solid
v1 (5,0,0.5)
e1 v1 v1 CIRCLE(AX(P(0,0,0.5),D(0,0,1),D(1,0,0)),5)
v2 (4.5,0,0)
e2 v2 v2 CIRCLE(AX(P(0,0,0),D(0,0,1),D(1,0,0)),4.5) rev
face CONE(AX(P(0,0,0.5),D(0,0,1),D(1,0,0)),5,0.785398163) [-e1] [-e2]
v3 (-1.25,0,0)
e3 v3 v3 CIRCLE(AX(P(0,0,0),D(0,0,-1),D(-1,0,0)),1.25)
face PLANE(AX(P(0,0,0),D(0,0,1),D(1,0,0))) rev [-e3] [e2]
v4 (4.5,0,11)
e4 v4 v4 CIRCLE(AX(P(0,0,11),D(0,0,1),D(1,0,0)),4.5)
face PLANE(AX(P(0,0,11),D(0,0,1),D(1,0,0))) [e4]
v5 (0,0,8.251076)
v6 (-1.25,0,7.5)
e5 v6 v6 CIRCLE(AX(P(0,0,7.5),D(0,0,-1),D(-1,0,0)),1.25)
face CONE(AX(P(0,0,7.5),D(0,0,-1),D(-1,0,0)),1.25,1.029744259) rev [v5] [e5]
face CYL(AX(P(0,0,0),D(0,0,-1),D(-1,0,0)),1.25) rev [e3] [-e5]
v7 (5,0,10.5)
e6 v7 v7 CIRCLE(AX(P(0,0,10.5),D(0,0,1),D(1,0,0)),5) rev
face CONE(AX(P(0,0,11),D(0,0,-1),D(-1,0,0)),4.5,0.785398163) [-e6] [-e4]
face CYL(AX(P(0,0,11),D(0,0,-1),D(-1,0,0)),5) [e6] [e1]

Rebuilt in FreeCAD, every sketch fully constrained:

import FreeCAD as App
import Part
import Sketcher
from FreeCAD import Vector


def edges_at(feature, points):
    """Names of the edges that pass closest to the given points."""
    edges = feature.Shape.Edges
    near = lambda p: min(range(len(edges)), key=lambda i: edges[i].distToShape(Part.Vertex(*p))[0])
    return sorted({f"Edge{near(p) + 1}" for p in points})

doc = App.newDocument("Part")
body = doc.addObject("PartDesign::Body", "Body")

sketch1 = body.newObject("Sketcher::SketchObject", "Sketch")
sketch1.AttachmentSupport = (doc.getObject("XY_Plane"), [""])
sketch1.MapMode = "FlatFace"
sketch1.addGeometry(Part.Circle(Vector(0, 0, 0), Vector(0, 0, 1), 5), False)
sketch1.addConstraint([
    Sketcher.Constraint("Coincident", 0, 3, -1, 1),
    Sketcher.Constraint("Diameter", 0, 10.0),
])
pad1 = body.newObject("PartDesign::Pad", "Pad")
pad1.Profile = sketch1
pad1.Length = 11

sketch2 = body.newObject("Sketcher::SketchObject", "Sketch001")
sketch2.AttachmentSupport = (doc.getObject("XY_Plane"), [""])
sketch2.MapMode = "FlatFace"
sketch2.addGeometry(Part.Circle(Vector(0, 0, 0), Vector(0, 0, 1), 1.2), False)
sketch2.addConstraint([
    Sketcher.Constraint("Coincident", 0, 3, -1, 1),
    Sketcher.Constraint("Diameter", 0, 2.5),
])
doc.recompute()
hole = body.newObject("PartDesign::Hole", "Hole")
hole.Profile = sketch2
hole.ThreadType = "None"
hole.Diameter = 2.5
hole.DepthType = "Dimension"
hole.Depth = 7.5
hole.DrillPoint = "Angled"
hole.DrillPointAngle = 118
hole.Reversed = True
doc.recompute()

chamfer = body.newObject("PartDesign::Chamfer", "Chamfer")
chamfer.Base = (hole, edges_at(hole, [(-5, 0, 0), (-5, 0, 11)]))
chamfer.Size = 0.5

doc.recompute()
